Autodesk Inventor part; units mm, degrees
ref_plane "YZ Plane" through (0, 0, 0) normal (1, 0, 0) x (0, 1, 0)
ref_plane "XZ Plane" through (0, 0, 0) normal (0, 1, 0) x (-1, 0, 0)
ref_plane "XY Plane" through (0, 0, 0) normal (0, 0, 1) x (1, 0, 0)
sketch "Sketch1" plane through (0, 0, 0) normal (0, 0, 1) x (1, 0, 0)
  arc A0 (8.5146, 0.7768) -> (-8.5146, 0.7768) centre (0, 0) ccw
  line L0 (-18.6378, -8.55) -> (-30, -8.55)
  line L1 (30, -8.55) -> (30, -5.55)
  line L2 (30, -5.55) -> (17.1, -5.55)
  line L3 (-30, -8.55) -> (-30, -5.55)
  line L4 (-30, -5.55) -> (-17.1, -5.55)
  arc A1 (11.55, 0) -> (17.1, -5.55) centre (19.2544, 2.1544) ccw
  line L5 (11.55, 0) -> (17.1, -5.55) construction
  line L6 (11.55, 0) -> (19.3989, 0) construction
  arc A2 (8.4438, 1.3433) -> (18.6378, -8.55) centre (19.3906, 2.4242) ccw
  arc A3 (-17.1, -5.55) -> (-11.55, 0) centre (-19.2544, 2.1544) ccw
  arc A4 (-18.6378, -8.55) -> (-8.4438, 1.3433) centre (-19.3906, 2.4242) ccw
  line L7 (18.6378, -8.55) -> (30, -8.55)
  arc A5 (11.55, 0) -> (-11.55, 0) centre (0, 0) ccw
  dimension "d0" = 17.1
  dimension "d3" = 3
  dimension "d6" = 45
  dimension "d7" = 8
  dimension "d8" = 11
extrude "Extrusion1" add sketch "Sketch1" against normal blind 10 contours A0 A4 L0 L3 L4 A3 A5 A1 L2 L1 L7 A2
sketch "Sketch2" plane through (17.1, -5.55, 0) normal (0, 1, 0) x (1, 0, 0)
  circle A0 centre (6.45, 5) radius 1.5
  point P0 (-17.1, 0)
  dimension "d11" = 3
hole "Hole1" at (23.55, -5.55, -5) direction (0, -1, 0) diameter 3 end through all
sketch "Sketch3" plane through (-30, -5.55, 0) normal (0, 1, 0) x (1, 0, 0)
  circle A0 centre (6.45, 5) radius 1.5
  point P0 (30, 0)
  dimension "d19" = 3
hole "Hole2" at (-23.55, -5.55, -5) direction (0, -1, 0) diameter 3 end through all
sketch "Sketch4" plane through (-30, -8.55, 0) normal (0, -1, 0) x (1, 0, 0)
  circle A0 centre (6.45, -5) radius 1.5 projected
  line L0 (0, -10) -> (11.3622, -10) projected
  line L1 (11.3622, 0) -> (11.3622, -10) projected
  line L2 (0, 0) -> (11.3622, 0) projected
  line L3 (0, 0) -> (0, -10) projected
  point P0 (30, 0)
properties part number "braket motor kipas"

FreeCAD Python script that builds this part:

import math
import FreeCAD as App
import Part
import Sketcher
from FreeCAD import Vector
Q = App.Units.Quantity

doc = App.newDocument("Part")
body = doc.addObject("PartDesign::Body", "Body")

# Sketch on XY plane
sketch1 = body.newObject("Sketcher::SketchObject", "Sketch")
sketch1.AttachmentSupport = (doc.getObject("XY_Plane"), [""])
sketch1.MapMode = "FlatFace"
sketch1.addGeometry([
    Part.ArcOfCircle(Part.Circle(Vector(0, 0, 0), Vector(0, 0, 1), 8.5), math.radians(5), math.radians(175)),  # 0
    Part.ArcOfCircle(Part.Circle(Vector(19.4, 2.4, 0), Vector(0, 0, 1), 11), math.radians(-171), math.radians(-94)),  # 1
    Part.LineSegment(Vector(18.6, -8.6, 0), Vector(30, -8.6, 0)),  # 2
    Part.LineSegment(Vector(30, -8.6, 0), Vector(30, -5.5, 0)),  # 3
    Part.LineSegment(Vector(30, -5.5, 0), Vector(17.1, -5.5, 0)),  # 4
    Part.ArcOfCircle(Part.Circle(Vector(19.3, 2.2, 0), Vector(0, 0, 1), 8), math.radians(-164), math.radians(-106)),  # 5
    Part.ArcOfCircle(Part.Circle(Vector(0, 0, 0), Vector(0, 0, 1), 11.6), math.radians(0), math.radians(180)),  # 6
    Part.ArcOfCircle(Part.Circle(Vector(-19.3, 2.2, 0), Vector(0, 0, 1), 8), math.radians(-74), math.radians(-16)),  # 7
    Part.LineSegment(Vector(-17.1, -5.5, 0), Vector(-30, -5.5, 0)),  # 8
    Part.LineSegment(Vector(-30, -5.5, 0), Vector(-30, -8.6, 0)),  # 9
    Part.LineSegment(Vector(-30, -8.6, 0), Vector(-18.6, -8.6, 0)),  # 10
    Part.ArcOfCircle(Part.Circle(Vector(-19.4, 2.4, 0), Vector(0, 0, 1), 11), math.radians(-86), math.radians(-9)),  # 11
], False)
sketch1.addConstraint([
    Sketcher.Constraint("Coincident", 0, 1, 1, 1),
    Sketcher.Constraint("Coincident", 1, 2, 2, 1),
    Sketcher.Constraint("Coincident", 2, 2, 3, 1),
    Sketcher.Constraint("Coincident", 3, 2, 4, 1),
    Sketcher.Constraint("Coincident", 4, 2, 5, 2),
    Sketcher.Constraint("Coincident", 5, 1, 6, 1),
    Sketcher.Constraint("Coincident", 6, 2, 7, 2),
    Sketcher.Constraint("Coincident", 7, 1, 8, 1),
    Sketcher.Constraint("Coincident", 8, 2, 9, 1),
    Sketcher.Constraint("Coincident", 9, 2, 10, 1),
    Sketcher.Constraint("Coincident", 10, 2, 11, 1),
    Sketcher.Constraint("Coincident", 11, 2, 0, 2),
    Sketcher.Constraint("Horizontal", 2),
    Sketcher.Constraint("Vertical", 3),
    Sketcher.Constraint("Horizontal", 4),
    Sketcher.Constraint("Horizontal", 8),
    Sketcher.Constraint("Vertical", 9),
    Sketcher.Constraint("Horizontal", 10),
    Sketcher.Constraint("Coincident", 0, 3, -1, 1),
    Sketcher.Constraint("Coincident", 6, 3, -1, 1),
    Sketcher.Constraint("Equal", 5, 7),
    Sketcher.Constraint("Equal", 1, 11),
    Sketcher.Constraint("Symmetric", 5, 3, 7, 3, -2),
    Sketcher.Constraint("Symmetric", 1, 3, 11, 3, -2),
    Sketcher.Constraint("Symmetric", 3, 2, 8, 2, -2),
    Sketcher.Constraint("PointOnObject", 5, 1, -1),
    Sketcher.Constraint("Horizontal", 2, 2, 9, 2),
    Sketcher.Constraint("Radius", 1, Q("11 mm")),
    Sketcher.Constraint("Radius", 5, Q("8 mm")),
    Sketcher.Constraint("DistanceY", 3, 1, 3, 2, Q("3 mm")),
    Sketcher.Constraint("Radius", 0, Q("8.55 mm")),
    Sketcher.Constraint("DistanceX", -1, 1, 4, 2, Q("17.1 mm")),
    Sketcher.Constraint("Radius", 6, Q("11.55 mm")),
    Sketcher.Constraint("DistanceX", 4, 2, 4, 1, Q("12.9 mm")),
    Sketcher.Constraint("DistanceY", 1, 2, -1, 1, Q("8.55 mm")),
    Sketcher.Constraint("DistanceX", 2, 1, 2, 2, Q("11.3622 mm")),
    Sketcher.Constraint("DistanceX", 7, 3, 1, 3, Q("38.645 mm")),
])
pad1 = body.newObject("PartDesign::Pad", "Pad")
pad1.Profile = sketch1
pad1.Length = 10
pad1.Reversed = True

# Sketch on XZ plane
sketch2 = body.newObject("Sketcher::SketchObject", "Sketch001")
sketch2.AttachmentSupport = (doc.getObject("XZ_Plane"), [""])
sketch2.MapMode = "FlatFace"
sketch2.AttachmentOffset = App.Placement(Vector(0, 0, 5.55), App.Rotation())
sketch2.addGeometry(Part.Circle(Vector(23.6, -5, 0), Vector(0, 0, 1), 1.5), False)
sketch2.addConstraint([
    Sketcher.Constraint("Diameter", 0, Q("3 mm")),
    Sketcher.Constraint("DistanceY", 0, 3, -1, 1, Q("5 mm")),
    Sketcher.Constraint("DistanceX", -1, 1, 0, 3, Q("23.55 mm")),
])
doc.recompute()
hole = body.newObject("PartDesign::Hole", "Hole")
hole.Profile = sketch2
hole.ThreadType = "None"
hole.Diameter = 3
hole.DepthType = "ThroughAll"
hole.Reversed = True

# Sketch on XZ plane
sketch3 = body.newObject("Sketcher::SketchObject", "Sketch002")
sketch3.AttachmentSupport = (doc.getObject("XZ_Plane"), [""])
sketch3.MapMode = "FlatFace"
sketch3.AttachmentOffset = App.Placement(Vector(0, 0, 5.55), App.Rotation())
sketch3.addGeometry(Part.Circle(Vector(-23.6, -5, 0), Vector(0, 0, 1), 1.5), False)
sketch3.addConstraint([
    Sketcher.Constraint("Diameter", 0, Q("3 mm")),
    Sketcher.Constraint("DistanceY", 0, 3, -1, 1, Q("5 mm")),
    Sketcher.Constraint("DistanceX", 0, 3, -1, 1, Q("23.55 mm")),
])
doc.recompute()
hole2 = body.newObject("PartDesign::Hole", "Hole001")
hole2.Profile = sketch3
hole2.ThreadType = "None"
hole2.Diameter = 3
hole2.DepthType = "ThroughAll"
hole2.Reversed = True

doc.recompute()
